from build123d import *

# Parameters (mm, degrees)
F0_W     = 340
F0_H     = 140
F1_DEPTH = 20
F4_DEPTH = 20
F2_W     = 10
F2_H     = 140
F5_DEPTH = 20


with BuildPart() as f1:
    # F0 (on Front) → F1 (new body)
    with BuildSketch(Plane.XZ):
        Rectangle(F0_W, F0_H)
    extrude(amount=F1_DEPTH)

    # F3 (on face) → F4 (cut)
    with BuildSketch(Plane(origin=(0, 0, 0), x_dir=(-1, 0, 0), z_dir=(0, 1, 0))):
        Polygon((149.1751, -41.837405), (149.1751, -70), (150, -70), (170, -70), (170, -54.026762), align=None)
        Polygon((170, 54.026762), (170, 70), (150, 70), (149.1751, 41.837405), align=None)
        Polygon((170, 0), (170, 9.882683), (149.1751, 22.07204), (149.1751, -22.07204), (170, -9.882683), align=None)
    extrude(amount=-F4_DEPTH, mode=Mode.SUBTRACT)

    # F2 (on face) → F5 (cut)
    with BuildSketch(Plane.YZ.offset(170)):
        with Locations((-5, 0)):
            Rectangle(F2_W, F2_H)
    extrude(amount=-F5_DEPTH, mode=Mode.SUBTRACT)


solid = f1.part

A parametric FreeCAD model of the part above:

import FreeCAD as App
import Part
import Sketcher
Q = App.Units.Quantity

doc = App.newDocument("Part")
body = doc.addObject("PartDesign::Body", "Body")

# Sketch on XZ plane
sketch1 = body.newObject("Sketcher::SketchObject", "Sketch")
sketch1.AttachmentSupport = (doc.getObject("XZ_Plane"), [""])
sketch1.MapMode = "FlatFace"
sketch1.addGeometry([
    Part.LineSegment(App.Vector(-170, 70, 0), App.Vector(-170, -70, 0)),
    Part.LineSegment(App.Vector(-170, -70, 0), App.Vector(170, -70, 0)),
    Part.LineSegment(App.Vector(170, -70, 0), App.Vector(170, 70, 0)),
    Part.LineSegment(App.Vector(170, 70, 0), App.Vector(-170, 70, 0)),
], False)
sketch1.addConstraint([
    Sketcher.Constraint("Coincident", 0, 2, 1, 1),
    Sketcher.Constraint("Coincident", 1, 2, 2, 1),
    Sketcher.Constraint("Coincident", 2, 2, 3, 1),
    Sketcher.Constraint("Coincident", 3, 2, 0, 1),
    Sketcher.Constraint("Vertical", 0),
    Sketcher.Constraint("Horizontal", 1),
    Sketcher.Constraint("Vertical", 2),
    Sketcher.Constraint("Horizontal", 3),
    Sketcher.Constraint("Symmetric", 0, 2, 2, 2, -1, 1),
    Sketcher.Constraint("DistanceX", 1, 1, 1, 2, Q("340 mm")),
    Sketcher.Constraint("DistanceY", 0, 2, 0, 1, Q("140 mm")),
])
pad1 = body.newObject("PartDesign::Pad", "Pad")
pad1.Profile = sketch1
pad1.Length = 20

# Sketch on XZ plane
sketch2 = body.newObject("Sketcher::SketchObject", "Sketch001")
sketch2.AttachmentSupport = (doc.getObject("XZ_Plane"), [""])
sketch2.MapMode = "FlatFace"
sketch2.addGeometry([
    Part.LineSegment(App.Vector(-149, -42, 0), App.Vector(-149, -70, 0)),  # 0
    Part.LineSegment(App.Vector(-149, -70, 0), App.Vector(-170, -70, 0)),  # 1
    Part.LineSegment(App.Vector(-170, -70, 0), App.Vector(-170, -54, 0)),  # 2
    Part.LineSegment(App.Vector(-170, -54, 0), App.Vector(-149, -42, 0)),  # 3
    Part.LineSegment(App.Vector(-170, 54, 0), App.Vector(-170, 70, 0)),  # 4
    Part.LineSegment(App.Vector(-170, 70, 0), App.Vector(-150, 70, 0)),  # 5
    Part.LineSegment(App.Vector(-150, 70, 0), App.Vector(-149, 42, 0)),  # 6
    Part.LineSegment(App.Vector(-149, 42, 0), App.Vector(-170, 54, 0)),  # 7
    Part.LineSegment(App.Vector(-170, 10, 0), App.Vector(-149, 22, 0)),  # 8
    Part.LineSegment(App.Vector(-149, 22, 0), App.Vector(-149, -22, 0)),  # 9
    Part.LineSegment(App.Vector(-149, -22, 0), App.Vector(-170, -10, 0)),  # 10
    Part.LineSegment(App.Vector(-170, -10, 0), App.Vector(-170, 10, 0)),  # 11
], False)
sketch2.addConstraint([
    Sketcher.Constraint("Coincident", 0, 2, 1, 1),
    Sketcher.Constraint("Coincident", 1, 2, 2, 1),
    Sketcher.Constraint("Coincident", 2, 2, 3, 1),
    Sketcher.Constraint("Coincident", 3, 2, 0, 1),
    Sketcher.Constraint("Coincident", 4, 2, 5, 1),
    Sketcher.Constraint("Coincident", 5, 2, 6, 1),
    Sketcher.Constraint("Coincident", 6, 2, 7, 1),
    Sketcher.Constraint("Coincident", 7, 2, 4, 1),
    Sketcher.Constraint("Coincident", 8, 2, 9, 1),
    Sketcher.Constraint("Coincident", 9, 2, 10, 1),
    Sketcher.Constraint("Coincident", 10, 2, 11, 1),
    Sketcher.Constraint("Coincident", 11, 2, 8, 1),
    Sketcher.Constraint("Vertical", 0),
    Sketcher.Constraint("Horizontal", 1),
    Sketcher.Constraint("Vertical", 2),
    Sketcher.Constraint("Vertical", 4),
    Sketcher.Constraint("Horizontal", 5),
    Sketcher.Constraint("Vertical", 9),
    Sketcher.Constraint("Vertical", 11),
    Sketcher.Constraint("Symmetric", 1, 2, 4, 2, -1),
    Sketcher.Constraint("Symmetric", 3, 2, 6, 2, -1),
    Sketcher.Constraint("Parallel", 3, 8),
    Sketcher.Constraint("Parallel", 7, 10),
    Sketcher.Constraint("Vertical", 6, 2, 8, 2),
    Sketcher.Constraint("Vertical", 7, 2, 10, 2),
    Sketcher.Constraint("Equal", 2, 4),
    Sketcher.Constraint("DistanceX", 5, 1, 5, 2, Q("20 mm")),
    Sketcher.Constraint("DistanceY", 0, 2, -1, 1, Q("70 mm")),
    Sketcher.Constraint("DistanceX", 1, 2, -1, 1, Q("170 mm")),
    Sketcher.Constraint("Distance", 3, Q("24.13 mm")),
    Sketcher.Constraint("DistanceX", 1, 2, 1, 1, Q("20.8249 mm")),
    Sketcher.Constraint("DistanceY", 2, 1, 2, 2, Q("15.973238 mm")),
    Sketcher.Constraint("DistanceY", 9, 2, 9, 1, Q("44.14408 mm")),
    Sketcher.Constraint("DistanceY", -1, 1, 8, 2, Q("22.07204 mm")),
])
pocket1 = body.newObject("PartDesign::Pocket", "Pocket")
pocket1.Profile = sketch2
pocket1.Length = 20
pocket1.Reversed = True

# Sketch on YZ plane
sketch3 = body.newObject("Sketcher::SketchObject", "Sketch002")
sketch3.AttachmentSupport = (doc.getObject("YZ_Plane"), [""])
sketch3.MapMode = "FlatFace"
sketch3.AttachmentOffset = App.Placement(App.Vector(0, 0, 170), App.Rotation())
sketch3.addGeometry([
    Part.LineSegment(App.Vector(-10, 70, 0), App.Vector(-10, -70, 0)),
    Part.LineSegment(App.Vector(-10, -70, 0), App.Vector(0, -70, 0)),
    Part.LineSegment(App.Vector(0, -70, 0), App.Vector(0, 70, 0)),
    Part.LineSegment(App.Vector(0, 70, 0), App.Vector(-10, 70, 0)),
], False)
sketch3.addConstraint([
    Sketcher.Constraint("Coincident", 0, 2, 1, 1),
    Sketcher.Constraint("Coincident", 1, 2, 2, 1),
    Sketcher.Constraint("Coincident", 2, 2, 3, 1),
    Sketcher.Constraint("Coincident", 3, 2, 0, 1),
    Sketcher.Constraint("Vertical", 0),
    Sketcher.Constraint("Horizontal", 1),
    Sketcher.Constraint("Vertical", 2),
    Sketcher.Constraint("Horizontal", 3),
    Sketcher.Constraint("Symmetric", 1, 2, 2, 2, -1, 1),
    Sketcher.Constraint("DistanceX", 1, 1, 1, 2, Q("10 mm")),
    Sketcher.Constraint("DistanceY", 0, 2, 0, 1, Q("140 mm")),
])
pocket2 = body.newObject("PartDesign::Pocket", "Pocket001")
pocket2.Profile = sketch3
pocket2.Length = 20

doc.recompute()
